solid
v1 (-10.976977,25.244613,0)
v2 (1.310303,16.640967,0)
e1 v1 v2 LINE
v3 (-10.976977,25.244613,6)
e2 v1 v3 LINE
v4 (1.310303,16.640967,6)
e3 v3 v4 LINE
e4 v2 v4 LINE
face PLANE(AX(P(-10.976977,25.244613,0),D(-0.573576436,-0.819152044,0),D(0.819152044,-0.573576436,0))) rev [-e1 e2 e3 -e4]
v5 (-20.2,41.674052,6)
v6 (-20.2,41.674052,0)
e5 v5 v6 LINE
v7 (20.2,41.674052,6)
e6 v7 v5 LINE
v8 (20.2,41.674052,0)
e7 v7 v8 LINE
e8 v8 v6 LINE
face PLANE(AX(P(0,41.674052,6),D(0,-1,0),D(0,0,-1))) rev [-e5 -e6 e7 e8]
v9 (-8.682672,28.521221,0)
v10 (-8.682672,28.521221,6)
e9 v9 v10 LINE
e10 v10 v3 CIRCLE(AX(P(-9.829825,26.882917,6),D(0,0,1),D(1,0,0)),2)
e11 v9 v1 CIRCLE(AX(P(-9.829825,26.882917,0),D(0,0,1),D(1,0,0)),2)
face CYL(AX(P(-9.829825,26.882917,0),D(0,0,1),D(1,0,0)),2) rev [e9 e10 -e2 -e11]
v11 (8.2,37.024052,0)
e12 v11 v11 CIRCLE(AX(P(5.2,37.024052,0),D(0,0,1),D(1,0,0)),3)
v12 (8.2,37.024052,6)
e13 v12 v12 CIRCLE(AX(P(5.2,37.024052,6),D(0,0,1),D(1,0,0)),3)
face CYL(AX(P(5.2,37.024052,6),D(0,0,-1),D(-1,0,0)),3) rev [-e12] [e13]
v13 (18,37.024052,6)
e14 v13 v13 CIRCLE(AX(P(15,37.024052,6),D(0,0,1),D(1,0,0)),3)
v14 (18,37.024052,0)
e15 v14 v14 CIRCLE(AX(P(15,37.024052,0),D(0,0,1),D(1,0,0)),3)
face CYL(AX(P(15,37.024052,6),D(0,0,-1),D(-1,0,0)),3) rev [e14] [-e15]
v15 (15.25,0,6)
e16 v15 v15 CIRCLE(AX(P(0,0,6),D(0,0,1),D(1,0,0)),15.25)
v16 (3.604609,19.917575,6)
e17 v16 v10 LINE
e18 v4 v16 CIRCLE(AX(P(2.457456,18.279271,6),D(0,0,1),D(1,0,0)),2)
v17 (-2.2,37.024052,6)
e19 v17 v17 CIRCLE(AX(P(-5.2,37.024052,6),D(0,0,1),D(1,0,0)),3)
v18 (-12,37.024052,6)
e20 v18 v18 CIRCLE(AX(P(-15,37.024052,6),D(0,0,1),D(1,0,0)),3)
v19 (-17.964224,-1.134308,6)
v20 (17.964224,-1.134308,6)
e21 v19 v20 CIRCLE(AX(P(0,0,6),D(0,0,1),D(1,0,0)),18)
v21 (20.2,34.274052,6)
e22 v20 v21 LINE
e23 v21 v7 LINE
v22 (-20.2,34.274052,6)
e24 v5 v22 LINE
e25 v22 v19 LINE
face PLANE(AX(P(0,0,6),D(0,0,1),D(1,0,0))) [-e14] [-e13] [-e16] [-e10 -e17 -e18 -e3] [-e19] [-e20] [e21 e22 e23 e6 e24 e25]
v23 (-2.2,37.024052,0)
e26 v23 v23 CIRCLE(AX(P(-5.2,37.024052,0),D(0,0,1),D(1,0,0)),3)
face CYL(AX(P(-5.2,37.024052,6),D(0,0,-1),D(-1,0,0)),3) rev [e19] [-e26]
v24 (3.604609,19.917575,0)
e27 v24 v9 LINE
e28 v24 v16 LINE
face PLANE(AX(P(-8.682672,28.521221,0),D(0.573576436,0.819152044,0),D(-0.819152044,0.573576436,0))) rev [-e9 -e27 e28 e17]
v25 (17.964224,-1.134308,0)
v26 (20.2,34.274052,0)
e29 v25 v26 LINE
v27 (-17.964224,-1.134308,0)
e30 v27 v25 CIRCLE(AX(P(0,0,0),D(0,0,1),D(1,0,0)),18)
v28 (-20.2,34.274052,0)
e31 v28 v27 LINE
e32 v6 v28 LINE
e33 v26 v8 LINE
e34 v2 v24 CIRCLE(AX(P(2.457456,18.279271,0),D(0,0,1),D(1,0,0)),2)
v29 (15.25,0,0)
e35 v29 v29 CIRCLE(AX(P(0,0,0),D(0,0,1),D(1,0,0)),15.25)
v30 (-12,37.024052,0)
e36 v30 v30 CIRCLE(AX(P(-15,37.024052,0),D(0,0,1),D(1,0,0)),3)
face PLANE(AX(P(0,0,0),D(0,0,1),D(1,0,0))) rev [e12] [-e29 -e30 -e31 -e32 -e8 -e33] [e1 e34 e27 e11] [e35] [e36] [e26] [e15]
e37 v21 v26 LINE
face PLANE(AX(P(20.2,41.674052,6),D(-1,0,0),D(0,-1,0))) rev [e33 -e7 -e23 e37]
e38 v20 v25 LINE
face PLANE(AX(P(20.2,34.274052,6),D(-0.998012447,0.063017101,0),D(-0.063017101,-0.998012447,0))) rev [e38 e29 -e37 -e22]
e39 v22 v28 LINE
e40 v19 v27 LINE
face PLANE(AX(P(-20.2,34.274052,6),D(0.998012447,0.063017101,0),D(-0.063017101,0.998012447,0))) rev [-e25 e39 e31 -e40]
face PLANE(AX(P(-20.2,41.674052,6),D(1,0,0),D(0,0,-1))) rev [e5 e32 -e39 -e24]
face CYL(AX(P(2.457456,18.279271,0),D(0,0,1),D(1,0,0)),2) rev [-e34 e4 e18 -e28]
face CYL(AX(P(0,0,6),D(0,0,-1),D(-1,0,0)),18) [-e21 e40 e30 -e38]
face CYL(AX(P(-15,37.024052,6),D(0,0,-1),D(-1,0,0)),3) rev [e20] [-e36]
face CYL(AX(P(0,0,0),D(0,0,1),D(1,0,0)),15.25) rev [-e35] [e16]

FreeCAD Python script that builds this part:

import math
import FreeCAD as App
import Part
import Sketcher

V = App.Vector
Q = App.Units.Quantity

doc = App.newDocument("Part")
body = doc.addObject("PartDesign::Body", "Body")

sketch1 = body.newObject("Sketcher::SketchObject", "Sketch")
sketch1.AttachmentSupport = (doc.getObject("XY_Plane"), [""])
sketch1.MapMode = "FlatFace"
sketch1.addGeometry(Part.LineSegment(V(20.2, 34.3, 0), V(20.2, 41.7, 0)), False)
sketch1.addGeometry(Part.LineSegment(V(20.2, 41.7, 0), V(-20.2, 41.7, 0)), False)
sketch1.addGeometry(Part.LineSegment(V(-20.2, 41.7, 0), V(-20.2, 34.3, 0)), False)
sketch1.addGeometry(Part.LineSegment(V(-20.2, 34.3, 0), V(-18, -1.1, 0)), False)
sketch1.addGeometry(Part.ArcOfCircle(Part.Circle(V(0, 0, 0), V(0, 0, 1), 18), math.radians(-176), math.radians(-4)), False)
sketch1.addGeometry(Part.LineSegment(V(18, -1.1, 0), V(20.2, 34.3, 0)), False)
sketch1.addGeometry(Part.Circle(V(0, 0, 0), V(0, 0, 1), 8), False)
sketch1.addGeometry(Part.Circle(V(15, 37, 0), V(0, 0, 1), 3), False)
sketch1.addGeometry(Part.Circle(V(5.2, 37, 0), V(0, 0, 1), 3), False)
sketch1.addGeometry(Part.Circle(V(-5.2, 37, 0), V(0, 0, 1), 3), False)
sketch1.addGeometry(Part.Circle(V(-15, 37, 0), V(0, 0, 1), 3), False)
sketch1.addConstraint(Sketcher.Constraint("Coincident", 0, 2, 1, 1))
sketch1.addConstraint(Sketcher.Constraint("Coincident", 1, 2, 2, 1))
sketch1.addConstraint(Sketcher.Constraint("Coincident", 2, 2, 3, 1))
sketch1.addConstraint(Sketcher.Constraint("Tangent", 3, 2, 4, 1))
sketch1.addConstraint(Sketcher.Constraint("Tangent", 4, 2, 5, 1))
sketch1.addConstraint(Sketcher.Constraint("Coincident", 5, 2, 0, 1))
sketch1.addConstraint(Sketcher.Constraint("Vertical", 0))
sketch1.addConstraint(Sketcher.Constraint("Horizontal", 1))
sketch1.addConstraint(Sketcher.Constraint("Vertical", 2))
sketch1.addConstraint(Sketcher.Constraint("Coincident", 4, 3, -1, 1))
sketch1.addConstraint(Sketcher.Constraint("Coincident", 6, 3, -1, 1))
sketch1.addConstraint(Sketcher.Constraint("Equal", 7, 8))
sketch1.addConstraint(Sketcher.Constraint("Equal", 8, 9))
sketch1.addConstraint(Sketcher.Constraint("Equal", 9, 10))
sketch1.addConstraint(Sketcher.Constraint("Symmetric", 8, 3, 9, 3, -2))
sketch1.addConstraint(Sketcher.Constraint("Symmetric", 7, 3, 10, 3, -2))
sketch1.addConstraint(Sketcher.Constraint("Symmetric", 2, 2, 5, 2, -2))
sketch1.addConstraint(Sketcher.Constraint("Horizontal", 7, 3, 8, 3))
sketch1.addConstraint(Sketcher.Constraint("Diameter", 7, 6.0))
sketch1.addConstraint(Sketcher.Constraint("Radius", 4, 18.0))
sketch1.addConstraint(Sketcher.Constraint("Diameter", 6, 15.9))
sketch1.addConstraint(Sketcher.Constraint("DistanceX", 1, 2, 1, 1, 40.4))
sketch1.addConstraint(Sketcher.Constraint("DistanceY", 0, 1, 0, 2, 7.4))
sketch1.addConstraint(Sketcher.Constraint("DistanceX", -1, 1, 7, 3, 15.0))
sketch1.addConstraint(Sketcher.Constraint("DistanceX", 8, 3, 0, 2, 15.0))
sketch1.addConstraint(Sketcher.Constraint("DistanceY", 7, 3, 0, 2, 4.65))
sketch1.addConstraint(Sketcher.Constraint("DistanceY", 3, 2, 2, 2, 35.40836))
pad1 = body.newObject("PartDesign::Pad", "Pad")
pad1.Profile = sketch1
pad1.Length = 6

sketch2 = body.newObject("Sketcher::SketchObject", "Sketch001")
sketch2.AttachmentSupport = (doc.getObject("XY_Plane"), [""])
sketch2.MapMode = "FlatFace"
sketch2.AttachmentOffset = App.Placement(V(0, 0, 6), App.Rotation())
sketch2.addGeometry(Part.Circle(V(-11.5, 0, 0), V(0, 0, 1), 1.5), False)
sketch2.addConstraint(Sketcher.Constraint("PointOnObject", 0, 3, -1))
sketch2.addConstraint(Sketcher.Constraint("Diameter", 0, 3.0))
sketch2.addConstraint(Sketcher.Constraint("DistanceX", 0, 3, -1, 1, 11.5))
pocket1 = body.newObject("PartDesign::Pocket", "Pocket")
pocket1.Profile = sketch2
pocket1.Type = "UpToFirst"

sketch3 = body.newObject("Sketcher::SketchObject", "Sketch002")
sketch3.AttachmentSupport = (doc.getObject("XY_Plane"), [""])
sketch3.MapMode = "FlatFace"
sketch3.AttachmentOffset = App.Placement(V(0, 0, 6), App.Rotation())
sketch3.addGeometry(Part.Circle(V(11.5, 0, 0), V(0, 0, 1), 1.5), False)
sketch3.addConstraint(Sketcher.Constraint("PointOnObject", 0, 3, -1))
sketch3.addConstraint(Sketcher.Constraint("Diameter", 0, 3.0))
sketch3.addConstraint(Sketcher.Constraint("DistanceX", -1, 1, 0, 3, 11.5))
pocket2 = body.newObject("PartDesign::Pocket", "Pocket001")
pocket2.Profile = sketch3
pocket2.Type = "UpToFirst"

sketch4 = body.newObject("Sketcher::SketchObject", "Sketch003")
sketch4.AttachmentSupport = (doc.getObject("XY_Plane"), [""])
sketch4.MapMode = "FlatFace"
sketch4.AttachmentOffset = App.Placement(V(0, 0, 6), App.Rotation())
sketch4.addGeometry(Part.LineSegment(V(3.6, 19.9, 0), V(-8.7, 28.5, 0)), False)
sketch4.addGeometry(Part.ArcOfCircle(Part.Circle(V(-9.8, 26.9, 0), V(0, 0, 1), 2), math.radians(55), math.radians(235)), False)
sketch4.addGeometry(Part.LineSegment(V(-11, 25.2, 0), V(1.3, 16.6, 0)), False)
sketch4.addGeometry(Part.ArcOfCircle(Part.Circle(V(2.5, 18.3, 0), V(0, 0, 1), 2), math.radians(-125), math.radians(55)), False)
sketch4.addConstraint(Sketcher.Constraint("Tangent", 0, 2, 1, 1))
sketch4.addConstraint(Sketcher.Constraint("Tangent", 1, 2, 2, 1))
sketch4.addConstraint(Sketcher.Constraint("Tangent", 2, 2, 3, 1))
sketch4.addConstraint(Sketcher.Constraint("Tangent", 3, 2, 0, 1))
sketch4.addConstraint(Sketcher.Constraint("Equal", 1, 3))
sketch4.addConstraint(Sketcher.Constraint("Radius", 1, 2.0))
sketch4.addConstraint(Sketcher.Constraint("Angle", 0, Q("145 deg")))
sketch4.addConstraint(Sketcher.Constraint("Distance", 0, 15.0))
sketch4.addConstraint(Sketcher.Constraint("DistanceY", -1, 1, 3, 3, 18.279271))
sketch4.addConstraint(Sketcher.Constraint("DistanceX", 0, 2, -1, 1, 8.682672))
pocket3 = body.newObject("PartDesign::Pocket", "Pocket002")
pocket3.Profile = sketch4
pocket3.Type = "ThroughAll"

sketch5 = body.newObject("Sketcher::SketchObject", "Sketch004")
sketch5.AttachmentSupport = (doc.getObject("XY_Plane"), [""])
sketch5.MapMode = "FlatFace"
sketch5.AttachmentOffset = App.Placement(V(0, 0, 6), App.Rotation())
sketch5.addGeometry(Part.Circle(V(0, 0, 0), V(0, 0, 1), 15), False)
sketch5.addConstraint(Sketcher.Constraint("Coincident", 0, 3, -1, 1))
sketch5.addConstraint(Sketcher.Constraint("Diameter", 0, 30.5))
pocket4 = body.newObject("PartDesign::Pocket", "Pocket003")
pocket4.Profile = sketch5
pocket4.Type = "ThroughAll"

doc.recompute()
